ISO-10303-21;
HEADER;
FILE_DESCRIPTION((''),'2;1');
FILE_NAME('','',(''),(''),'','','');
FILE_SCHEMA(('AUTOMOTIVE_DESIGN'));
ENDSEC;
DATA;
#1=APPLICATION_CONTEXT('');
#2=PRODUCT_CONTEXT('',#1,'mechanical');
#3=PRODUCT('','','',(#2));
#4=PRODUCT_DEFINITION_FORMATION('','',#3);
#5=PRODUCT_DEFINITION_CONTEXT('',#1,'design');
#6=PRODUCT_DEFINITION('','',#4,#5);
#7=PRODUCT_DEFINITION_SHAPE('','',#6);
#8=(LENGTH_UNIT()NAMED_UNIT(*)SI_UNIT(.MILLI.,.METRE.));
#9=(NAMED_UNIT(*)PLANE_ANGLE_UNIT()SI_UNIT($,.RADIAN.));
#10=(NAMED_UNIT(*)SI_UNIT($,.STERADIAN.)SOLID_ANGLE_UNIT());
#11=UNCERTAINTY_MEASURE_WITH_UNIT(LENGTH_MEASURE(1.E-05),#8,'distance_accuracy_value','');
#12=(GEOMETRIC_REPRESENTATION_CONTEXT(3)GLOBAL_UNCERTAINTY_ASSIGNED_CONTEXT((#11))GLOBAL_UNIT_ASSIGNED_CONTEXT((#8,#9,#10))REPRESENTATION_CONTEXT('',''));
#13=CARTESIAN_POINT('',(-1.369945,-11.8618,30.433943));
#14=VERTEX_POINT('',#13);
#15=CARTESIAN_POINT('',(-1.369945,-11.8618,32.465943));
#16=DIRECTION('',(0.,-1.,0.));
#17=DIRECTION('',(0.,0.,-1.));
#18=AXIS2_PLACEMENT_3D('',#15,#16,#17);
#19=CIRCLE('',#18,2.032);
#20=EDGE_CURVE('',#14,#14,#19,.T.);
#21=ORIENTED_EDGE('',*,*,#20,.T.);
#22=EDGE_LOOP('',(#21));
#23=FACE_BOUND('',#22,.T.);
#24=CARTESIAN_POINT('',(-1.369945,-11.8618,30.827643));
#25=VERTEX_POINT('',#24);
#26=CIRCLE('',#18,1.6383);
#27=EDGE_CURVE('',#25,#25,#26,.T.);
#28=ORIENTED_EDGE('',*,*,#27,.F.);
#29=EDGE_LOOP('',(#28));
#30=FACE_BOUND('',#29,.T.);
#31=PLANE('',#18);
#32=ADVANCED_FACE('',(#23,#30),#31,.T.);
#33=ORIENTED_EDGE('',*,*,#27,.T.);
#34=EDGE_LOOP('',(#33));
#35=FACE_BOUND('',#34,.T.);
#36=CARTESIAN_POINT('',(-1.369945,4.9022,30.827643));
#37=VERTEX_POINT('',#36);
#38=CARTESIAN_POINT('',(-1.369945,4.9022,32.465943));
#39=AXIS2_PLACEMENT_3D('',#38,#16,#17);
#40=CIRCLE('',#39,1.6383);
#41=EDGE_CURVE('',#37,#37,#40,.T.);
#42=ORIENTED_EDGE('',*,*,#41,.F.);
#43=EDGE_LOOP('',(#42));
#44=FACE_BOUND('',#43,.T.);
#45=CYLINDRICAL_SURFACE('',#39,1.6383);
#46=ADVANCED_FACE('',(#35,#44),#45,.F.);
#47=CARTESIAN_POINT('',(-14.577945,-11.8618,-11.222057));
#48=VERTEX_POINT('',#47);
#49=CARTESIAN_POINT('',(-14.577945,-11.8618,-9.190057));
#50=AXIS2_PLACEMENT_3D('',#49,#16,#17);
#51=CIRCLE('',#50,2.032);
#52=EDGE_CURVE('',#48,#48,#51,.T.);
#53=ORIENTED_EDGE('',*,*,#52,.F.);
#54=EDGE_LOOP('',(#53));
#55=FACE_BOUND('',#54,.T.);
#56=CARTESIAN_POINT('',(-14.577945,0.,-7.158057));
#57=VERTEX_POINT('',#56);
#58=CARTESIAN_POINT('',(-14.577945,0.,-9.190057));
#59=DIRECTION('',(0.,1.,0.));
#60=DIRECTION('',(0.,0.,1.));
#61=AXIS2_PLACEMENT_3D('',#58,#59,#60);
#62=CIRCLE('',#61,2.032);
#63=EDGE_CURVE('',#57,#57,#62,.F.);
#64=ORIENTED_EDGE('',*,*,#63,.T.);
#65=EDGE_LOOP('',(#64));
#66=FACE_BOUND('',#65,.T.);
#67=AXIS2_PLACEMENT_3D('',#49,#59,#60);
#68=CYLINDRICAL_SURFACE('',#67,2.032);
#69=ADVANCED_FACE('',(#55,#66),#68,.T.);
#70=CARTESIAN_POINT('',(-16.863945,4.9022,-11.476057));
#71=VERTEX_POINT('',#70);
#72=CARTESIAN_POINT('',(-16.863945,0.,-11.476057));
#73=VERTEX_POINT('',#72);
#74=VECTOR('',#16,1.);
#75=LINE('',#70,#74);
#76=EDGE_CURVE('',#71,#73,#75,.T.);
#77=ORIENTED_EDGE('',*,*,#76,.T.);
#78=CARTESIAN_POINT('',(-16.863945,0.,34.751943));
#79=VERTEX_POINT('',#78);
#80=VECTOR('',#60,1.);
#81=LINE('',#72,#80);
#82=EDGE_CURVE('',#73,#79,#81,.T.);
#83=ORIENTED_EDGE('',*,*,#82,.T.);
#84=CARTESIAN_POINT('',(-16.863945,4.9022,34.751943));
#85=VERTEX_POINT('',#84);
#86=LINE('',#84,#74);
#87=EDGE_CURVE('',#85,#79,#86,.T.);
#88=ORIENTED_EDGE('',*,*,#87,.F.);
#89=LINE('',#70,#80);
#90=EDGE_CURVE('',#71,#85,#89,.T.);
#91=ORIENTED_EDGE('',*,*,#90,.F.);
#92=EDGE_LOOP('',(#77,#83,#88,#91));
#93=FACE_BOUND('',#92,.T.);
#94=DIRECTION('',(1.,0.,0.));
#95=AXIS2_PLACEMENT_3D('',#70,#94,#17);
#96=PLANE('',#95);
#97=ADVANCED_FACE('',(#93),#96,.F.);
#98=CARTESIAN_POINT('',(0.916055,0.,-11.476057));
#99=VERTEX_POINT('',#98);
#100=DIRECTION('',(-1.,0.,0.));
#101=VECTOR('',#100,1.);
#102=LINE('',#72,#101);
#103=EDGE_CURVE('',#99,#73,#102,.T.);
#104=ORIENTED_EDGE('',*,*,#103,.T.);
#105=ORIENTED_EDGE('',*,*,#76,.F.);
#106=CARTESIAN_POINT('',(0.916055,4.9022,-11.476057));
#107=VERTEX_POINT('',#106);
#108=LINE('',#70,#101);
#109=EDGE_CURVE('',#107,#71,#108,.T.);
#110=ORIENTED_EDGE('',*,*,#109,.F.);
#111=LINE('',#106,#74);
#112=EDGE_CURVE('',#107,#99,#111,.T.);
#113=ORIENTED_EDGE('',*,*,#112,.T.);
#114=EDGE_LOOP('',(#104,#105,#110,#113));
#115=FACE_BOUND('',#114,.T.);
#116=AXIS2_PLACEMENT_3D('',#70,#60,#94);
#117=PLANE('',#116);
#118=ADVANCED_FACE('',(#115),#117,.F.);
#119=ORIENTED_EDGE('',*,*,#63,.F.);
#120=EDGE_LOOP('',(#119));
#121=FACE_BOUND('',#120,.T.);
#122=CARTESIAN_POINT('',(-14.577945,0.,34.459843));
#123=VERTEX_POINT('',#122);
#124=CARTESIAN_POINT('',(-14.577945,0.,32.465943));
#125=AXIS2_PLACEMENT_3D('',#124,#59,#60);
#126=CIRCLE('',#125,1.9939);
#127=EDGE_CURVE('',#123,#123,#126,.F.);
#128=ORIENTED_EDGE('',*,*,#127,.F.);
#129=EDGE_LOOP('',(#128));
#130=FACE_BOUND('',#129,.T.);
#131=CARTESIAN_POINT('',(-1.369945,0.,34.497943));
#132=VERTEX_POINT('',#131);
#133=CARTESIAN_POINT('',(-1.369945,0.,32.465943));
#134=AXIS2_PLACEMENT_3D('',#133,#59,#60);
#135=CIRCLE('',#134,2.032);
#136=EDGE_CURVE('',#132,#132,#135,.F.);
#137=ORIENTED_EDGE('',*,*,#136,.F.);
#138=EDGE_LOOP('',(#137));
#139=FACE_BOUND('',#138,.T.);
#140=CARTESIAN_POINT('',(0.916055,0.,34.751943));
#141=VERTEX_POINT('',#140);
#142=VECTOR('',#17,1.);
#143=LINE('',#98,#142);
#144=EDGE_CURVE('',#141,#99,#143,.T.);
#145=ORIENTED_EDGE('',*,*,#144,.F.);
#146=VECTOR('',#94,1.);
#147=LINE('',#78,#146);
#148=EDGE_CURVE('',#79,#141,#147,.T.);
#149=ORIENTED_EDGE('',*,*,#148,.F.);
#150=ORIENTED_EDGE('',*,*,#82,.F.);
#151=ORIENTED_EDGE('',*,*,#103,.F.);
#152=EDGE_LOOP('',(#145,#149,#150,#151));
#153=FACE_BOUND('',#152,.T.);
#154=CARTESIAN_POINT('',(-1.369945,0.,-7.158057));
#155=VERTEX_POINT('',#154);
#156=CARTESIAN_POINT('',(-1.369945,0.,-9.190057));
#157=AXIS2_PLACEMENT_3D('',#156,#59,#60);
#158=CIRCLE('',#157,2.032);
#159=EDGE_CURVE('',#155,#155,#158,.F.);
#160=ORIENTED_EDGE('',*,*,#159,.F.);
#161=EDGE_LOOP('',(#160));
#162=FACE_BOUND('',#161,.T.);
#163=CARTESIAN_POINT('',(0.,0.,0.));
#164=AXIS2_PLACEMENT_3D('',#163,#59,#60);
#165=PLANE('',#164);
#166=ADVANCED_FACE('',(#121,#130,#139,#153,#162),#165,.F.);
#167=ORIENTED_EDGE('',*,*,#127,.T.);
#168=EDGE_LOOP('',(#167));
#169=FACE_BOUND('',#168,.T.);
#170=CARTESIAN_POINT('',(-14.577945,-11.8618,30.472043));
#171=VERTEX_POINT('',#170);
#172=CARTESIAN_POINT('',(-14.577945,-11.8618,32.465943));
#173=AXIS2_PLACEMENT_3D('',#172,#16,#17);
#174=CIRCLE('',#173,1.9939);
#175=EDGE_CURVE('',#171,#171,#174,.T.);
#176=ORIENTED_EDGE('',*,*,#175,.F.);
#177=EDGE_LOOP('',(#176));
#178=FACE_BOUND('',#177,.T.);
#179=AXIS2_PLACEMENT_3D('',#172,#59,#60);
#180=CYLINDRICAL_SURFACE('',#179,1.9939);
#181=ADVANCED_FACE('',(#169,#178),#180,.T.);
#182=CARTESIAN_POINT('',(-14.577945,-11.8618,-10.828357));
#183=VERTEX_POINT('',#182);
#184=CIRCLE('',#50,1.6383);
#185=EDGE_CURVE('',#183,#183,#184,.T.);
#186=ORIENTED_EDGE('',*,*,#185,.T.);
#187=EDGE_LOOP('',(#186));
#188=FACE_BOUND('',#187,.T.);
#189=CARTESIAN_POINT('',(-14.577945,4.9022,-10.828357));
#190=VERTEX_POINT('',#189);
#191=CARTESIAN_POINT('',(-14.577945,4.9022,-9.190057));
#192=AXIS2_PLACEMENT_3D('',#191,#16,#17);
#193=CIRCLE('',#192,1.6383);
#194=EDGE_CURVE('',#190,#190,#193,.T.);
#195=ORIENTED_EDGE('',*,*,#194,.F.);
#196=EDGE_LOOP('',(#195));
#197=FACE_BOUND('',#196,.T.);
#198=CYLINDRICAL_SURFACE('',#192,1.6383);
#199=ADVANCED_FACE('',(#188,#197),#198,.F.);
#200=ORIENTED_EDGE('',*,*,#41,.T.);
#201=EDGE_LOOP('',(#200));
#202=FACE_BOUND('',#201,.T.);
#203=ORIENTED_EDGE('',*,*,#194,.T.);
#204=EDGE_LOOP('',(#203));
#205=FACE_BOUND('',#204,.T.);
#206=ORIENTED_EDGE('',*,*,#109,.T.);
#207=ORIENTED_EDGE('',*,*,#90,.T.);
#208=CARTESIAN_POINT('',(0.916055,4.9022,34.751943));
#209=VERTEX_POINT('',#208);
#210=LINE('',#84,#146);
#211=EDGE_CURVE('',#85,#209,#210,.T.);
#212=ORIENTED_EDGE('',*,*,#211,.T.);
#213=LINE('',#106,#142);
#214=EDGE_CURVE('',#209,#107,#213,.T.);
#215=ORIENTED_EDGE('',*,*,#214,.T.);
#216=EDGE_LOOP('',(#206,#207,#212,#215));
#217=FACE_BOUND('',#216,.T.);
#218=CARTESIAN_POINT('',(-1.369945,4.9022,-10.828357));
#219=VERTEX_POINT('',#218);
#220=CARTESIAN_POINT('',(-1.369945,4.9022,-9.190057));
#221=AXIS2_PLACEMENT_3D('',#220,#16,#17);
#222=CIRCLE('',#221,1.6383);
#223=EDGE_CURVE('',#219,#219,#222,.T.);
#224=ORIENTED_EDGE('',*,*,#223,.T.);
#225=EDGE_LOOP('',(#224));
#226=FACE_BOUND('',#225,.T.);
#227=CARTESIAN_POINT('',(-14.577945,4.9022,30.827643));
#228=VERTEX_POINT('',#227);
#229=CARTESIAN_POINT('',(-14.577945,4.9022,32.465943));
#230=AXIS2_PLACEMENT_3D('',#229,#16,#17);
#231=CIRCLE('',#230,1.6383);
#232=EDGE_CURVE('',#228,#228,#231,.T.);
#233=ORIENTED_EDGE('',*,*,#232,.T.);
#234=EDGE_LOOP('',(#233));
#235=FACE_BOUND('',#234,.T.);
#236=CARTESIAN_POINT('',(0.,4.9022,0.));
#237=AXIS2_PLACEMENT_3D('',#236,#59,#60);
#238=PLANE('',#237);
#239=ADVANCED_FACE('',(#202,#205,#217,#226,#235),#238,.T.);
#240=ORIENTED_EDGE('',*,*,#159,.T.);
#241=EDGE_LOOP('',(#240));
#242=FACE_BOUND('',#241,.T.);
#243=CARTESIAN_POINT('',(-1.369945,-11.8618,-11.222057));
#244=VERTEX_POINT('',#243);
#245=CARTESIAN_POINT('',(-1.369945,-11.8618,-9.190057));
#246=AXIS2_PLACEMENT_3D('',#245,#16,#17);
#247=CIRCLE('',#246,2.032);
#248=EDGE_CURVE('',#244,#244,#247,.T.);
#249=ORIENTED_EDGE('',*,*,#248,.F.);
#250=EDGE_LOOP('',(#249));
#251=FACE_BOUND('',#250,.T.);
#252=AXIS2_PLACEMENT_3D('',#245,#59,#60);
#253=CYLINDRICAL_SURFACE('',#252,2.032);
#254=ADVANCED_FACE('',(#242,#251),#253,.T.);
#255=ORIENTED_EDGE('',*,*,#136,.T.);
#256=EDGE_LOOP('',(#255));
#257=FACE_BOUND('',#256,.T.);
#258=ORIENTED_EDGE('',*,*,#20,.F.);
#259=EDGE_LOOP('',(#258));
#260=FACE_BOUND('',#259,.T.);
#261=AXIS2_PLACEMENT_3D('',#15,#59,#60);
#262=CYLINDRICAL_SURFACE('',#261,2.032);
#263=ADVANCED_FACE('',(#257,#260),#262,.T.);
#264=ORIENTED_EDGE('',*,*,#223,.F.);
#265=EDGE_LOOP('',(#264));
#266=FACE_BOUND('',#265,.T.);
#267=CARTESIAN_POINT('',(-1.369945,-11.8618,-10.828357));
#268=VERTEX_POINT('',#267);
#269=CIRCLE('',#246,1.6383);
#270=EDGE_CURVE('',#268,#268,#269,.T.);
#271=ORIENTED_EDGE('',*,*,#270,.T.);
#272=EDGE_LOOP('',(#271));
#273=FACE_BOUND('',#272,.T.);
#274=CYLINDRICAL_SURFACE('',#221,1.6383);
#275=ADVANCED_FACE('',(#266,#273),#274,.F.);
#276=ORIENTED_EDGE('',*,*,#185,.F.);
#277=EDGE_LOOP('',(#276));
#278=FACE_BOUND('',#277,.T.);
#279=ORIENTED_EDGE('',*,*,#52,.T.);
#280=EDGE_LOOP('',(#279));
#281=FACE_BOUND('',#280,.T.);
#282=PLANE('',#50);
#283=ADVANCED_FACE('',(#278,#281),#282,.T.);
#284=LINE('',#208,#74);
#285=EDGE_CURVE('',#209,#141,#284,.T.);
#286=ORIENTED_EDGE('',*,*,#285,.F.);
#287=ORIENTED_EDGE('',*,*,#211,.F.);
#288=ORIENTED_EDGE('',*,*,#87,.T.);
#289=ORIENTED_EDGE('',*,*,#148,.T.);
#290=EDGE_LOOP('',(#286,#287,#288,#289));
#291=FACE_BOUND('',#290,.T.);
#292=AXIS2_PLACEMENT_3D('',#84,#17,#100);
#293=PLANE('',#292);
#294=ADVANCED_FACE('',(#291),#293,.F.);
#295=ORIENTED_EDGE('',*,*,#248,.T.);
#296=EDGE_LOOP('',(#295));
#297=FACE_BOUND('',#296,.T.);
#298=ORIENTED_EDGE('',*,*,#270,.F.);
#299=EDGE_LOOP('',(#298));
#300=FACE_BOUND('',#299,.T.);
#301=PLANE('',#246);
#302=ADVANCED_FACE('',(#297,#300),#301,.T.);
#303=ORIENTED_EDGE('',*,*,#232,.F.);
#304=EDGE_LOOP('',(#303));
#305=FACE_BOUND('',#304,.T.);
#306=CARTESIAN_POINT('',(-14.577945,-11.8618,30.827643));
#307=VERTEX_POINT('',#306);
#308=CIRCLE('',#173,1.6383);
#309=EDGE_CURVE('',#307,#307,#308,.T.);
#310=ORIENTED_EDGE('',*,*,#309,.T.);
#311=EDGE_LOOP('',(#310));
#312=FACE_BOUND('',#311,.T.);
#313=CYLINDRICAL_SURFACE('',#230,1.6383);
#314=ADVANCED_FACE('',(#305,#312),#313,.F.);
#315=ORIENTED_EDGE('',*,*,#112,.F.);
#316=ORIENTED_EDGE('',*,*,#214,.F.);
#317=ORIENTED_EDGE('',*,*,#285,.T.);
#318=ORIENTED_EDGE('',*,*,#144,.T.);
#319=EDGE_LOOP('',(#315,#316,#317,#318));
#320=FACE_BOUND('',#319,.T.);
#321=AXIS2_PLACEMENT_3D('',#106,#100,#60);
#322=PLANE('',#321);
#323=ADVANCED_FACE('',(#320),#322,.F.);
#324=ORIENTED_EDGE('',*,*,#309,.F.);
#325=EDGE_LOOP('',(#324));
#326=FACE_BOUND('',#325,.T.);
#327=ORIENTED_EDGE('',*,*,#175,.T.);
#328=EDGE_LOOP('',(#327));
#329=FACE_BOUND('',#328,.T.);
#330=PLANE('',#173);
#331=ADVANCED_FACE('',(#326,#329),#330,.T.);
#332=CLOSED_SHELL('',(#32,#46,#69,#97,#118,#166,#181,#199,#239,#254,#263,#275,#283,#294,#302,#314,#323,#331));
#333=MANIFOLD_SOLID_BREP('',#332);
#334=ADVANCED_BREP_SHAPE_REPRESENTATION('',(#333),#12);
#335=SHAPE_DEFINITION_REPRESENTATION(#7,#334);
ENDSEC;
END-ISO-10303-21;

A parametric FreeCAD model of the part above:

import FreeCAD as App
import Part
import Sketcher

V = App.Vector
Q = App.Units.Quantity

doc = App.newDocument("Part")
body = doc.addObject("PartDesign::Body", "Body")

sketch1 = body.newObject("Sketcher::SketchObject", "Sketch")
sketch1.AttachmentSupport = (doc.getObject("XZ_Plane"), [""])
sketch1.MapMode = "FlatFace"
sketch1.addGeometry([
    Part.LineSegment(V(-17, -11, 0), V(-17, 35, 0)),
    Part.LineSegment(V(-17, 35, 0), V(1, 35, 0)),
    Part.LineSegment(V(1, 35, 0), V(1, -11, 0)),
    Part.LineSegment(V(1, -11, 0), V(-17, -11, 0)),
], False)
sketch1.addConstraint([
    Sketcher.Constraint("Coincident", 0, 2, 1, 1),
    Sketcher.Constraint("Coincident", 1, 2, 2, 1),
    Sketcher.Constraint("Coincident", 2, 2, 3, 1),
    Sketcher.Constraint("Coincident", 3, 2, 0, 1),
    Sketcher.Constraint("Vertical", 0),
    Sketcher.Constraint("Horizontal", 1),
    Sketcher.Constraint("Vertical", 2),
    Sketcher.Constraint("Horizontal", 3),
    Sketcher.Constraint("DistanceX", 1, 1, 1, 2, Q("0.7 in")),
    Sketcher.Constraint("DistanceY", 0, 1, 0, 2, Q("1.82 in")),
    Sketcher.Constraint("DistanceX", 0, 2, -1, 1, Q("16.863945 mm")),
    Sketcher.Constraint("DistanceY", -1, 1, 0, 2, Q("34.751943 mm")),
])
pad1 = body.newObject("PartDesign::Pad", "Pad")
pad1.Profile = sketch1
pad1.Length = Q("0.193 in")
pad1.Reversed = True

sketch2 = body.newObject("Sketcher::SketchObject", "Sketch001")
sketch2.AttachmentSupport = (doc.getObject("XZ_Plane"), [""])
sketch2.MapMode = "FlatFace"
sketch2.addGeometry([
    Part.Circle(V(-14.6, 32.5, 0), V(0, 0, 1), 2),
    Part.Circle(V(-1.4, 32.5, 0), V(0, 0, 1), 2),
    Part.Circle(V(-1.4, -9.2, 0), V(0, 0, 1), 2),
    Part.Circle(V(-14.6, -9.2, 0), V(0, 0, 1), 2),
], False)
sketch2.addConstraint([
    Sketcher.Constraint("Equal", 1, 2),
    Sketcher.Constraint("Equal", 2, 3),
    Sketcher.Constraint("Horizontal", 0, 3, 1, 3),
    Sketcher.Constraint("Horizontal", 2, 3, 3, 3),
    Sketcher.Constraint("Vertical", 1, 3, 2, 3),
    Sketcher.Constraint("Vertical", 0, 3, 3, 3),
    Sketcher.Constraint("Diameter", 1, Q("0.16 in")),
    Sketcher.Constraint("Diameter", 0, Q("0.157 in")),
    Sketcher.Constraint("DistanceX", 0, 3, 1, 3, Q("0.52 in")),
    Sketcher.Constraint("DistanceY", 2, 3, 1, 3, Q("1.64 in")),
    Sketcher.Constraint("DistanceX", 0, 3, -1, 1, Q("14.577945 mm")),
    Sketcher.Constraint("DistanceY", -1, 1, 0, 3, Q("32.465943 mm")),
])
pad2 = body.newObject("PartDesign::Pad", "Pad001")
pad2.Profile = sketch2
pad2.Length = Q("0.467 in")

sketch3 = body.newObject("Sketcher::SketchObject", "Sketch002")
sketch3.AttachmentSupport = (doc.getObject("XZ_Plane"), [""])
sketch3.MapMode = "FlatFace"
sketch3.AttachmentOffset = App.Placement(V(0, 0, 0.467 * 25.4), App.Rotation())
sketch3.addGeometry([
    Part.Circle(V(-14.6, 32.5, 0), V(0, 0, 1), 1.6),
    Part.Circle(V(-14.6, -9.2, 0), V(0, 0, 1), 1.6),
    Part.Circle(V(-1.4, -9.2, 0), V(0, 0, 1), 1.6),
    Part.Circle(V(-1.4, 32.5, 0), V(0, 0, 1), 1.6),
], False)
sketch3.addConstraint([
    Sketcher.Constraint("Equal", 0, 1),
    Sketcher.Constraint("Equal", 1, 2),
    Sketcher.Constraint("Equal", 2, 3),
    Sketcher.Constraint("Horizontal", 1, 3, 2, 3),
    Sketcher.Constraint("Horizontal", 0, 3, 3, 3),
    Sketcher.Constraint("Vertical", 0, 3, 1, 3),
    Sketcher.Constraint("Vertical", 2, 3, 3, 3),
    Sketcher.Constraint("Diameter", 0, Q("0.129 in")),
    Sketcher.Constraint("DistanceY", 1, 3, 0, 3, Q("1.64 in")),
    Sketcher.Constraint("DistanceX", 1, 3, 2, 3, Q("0.52 in")),
    Sketcher.Constraint("DistanceX", 0, 3, -1, 1, Q("14.577945 mm")),
    Sketcher.Constraint("DistanceY", -1, 1, 0, 3, Q("32.465943 mm")),
])
pocket1 = body.newObject("PartDesign::Pocket", "Pocket")
pocket1.Profile = sketch3
pocket1.Type = "ThroughAll"

doc.recompute()
